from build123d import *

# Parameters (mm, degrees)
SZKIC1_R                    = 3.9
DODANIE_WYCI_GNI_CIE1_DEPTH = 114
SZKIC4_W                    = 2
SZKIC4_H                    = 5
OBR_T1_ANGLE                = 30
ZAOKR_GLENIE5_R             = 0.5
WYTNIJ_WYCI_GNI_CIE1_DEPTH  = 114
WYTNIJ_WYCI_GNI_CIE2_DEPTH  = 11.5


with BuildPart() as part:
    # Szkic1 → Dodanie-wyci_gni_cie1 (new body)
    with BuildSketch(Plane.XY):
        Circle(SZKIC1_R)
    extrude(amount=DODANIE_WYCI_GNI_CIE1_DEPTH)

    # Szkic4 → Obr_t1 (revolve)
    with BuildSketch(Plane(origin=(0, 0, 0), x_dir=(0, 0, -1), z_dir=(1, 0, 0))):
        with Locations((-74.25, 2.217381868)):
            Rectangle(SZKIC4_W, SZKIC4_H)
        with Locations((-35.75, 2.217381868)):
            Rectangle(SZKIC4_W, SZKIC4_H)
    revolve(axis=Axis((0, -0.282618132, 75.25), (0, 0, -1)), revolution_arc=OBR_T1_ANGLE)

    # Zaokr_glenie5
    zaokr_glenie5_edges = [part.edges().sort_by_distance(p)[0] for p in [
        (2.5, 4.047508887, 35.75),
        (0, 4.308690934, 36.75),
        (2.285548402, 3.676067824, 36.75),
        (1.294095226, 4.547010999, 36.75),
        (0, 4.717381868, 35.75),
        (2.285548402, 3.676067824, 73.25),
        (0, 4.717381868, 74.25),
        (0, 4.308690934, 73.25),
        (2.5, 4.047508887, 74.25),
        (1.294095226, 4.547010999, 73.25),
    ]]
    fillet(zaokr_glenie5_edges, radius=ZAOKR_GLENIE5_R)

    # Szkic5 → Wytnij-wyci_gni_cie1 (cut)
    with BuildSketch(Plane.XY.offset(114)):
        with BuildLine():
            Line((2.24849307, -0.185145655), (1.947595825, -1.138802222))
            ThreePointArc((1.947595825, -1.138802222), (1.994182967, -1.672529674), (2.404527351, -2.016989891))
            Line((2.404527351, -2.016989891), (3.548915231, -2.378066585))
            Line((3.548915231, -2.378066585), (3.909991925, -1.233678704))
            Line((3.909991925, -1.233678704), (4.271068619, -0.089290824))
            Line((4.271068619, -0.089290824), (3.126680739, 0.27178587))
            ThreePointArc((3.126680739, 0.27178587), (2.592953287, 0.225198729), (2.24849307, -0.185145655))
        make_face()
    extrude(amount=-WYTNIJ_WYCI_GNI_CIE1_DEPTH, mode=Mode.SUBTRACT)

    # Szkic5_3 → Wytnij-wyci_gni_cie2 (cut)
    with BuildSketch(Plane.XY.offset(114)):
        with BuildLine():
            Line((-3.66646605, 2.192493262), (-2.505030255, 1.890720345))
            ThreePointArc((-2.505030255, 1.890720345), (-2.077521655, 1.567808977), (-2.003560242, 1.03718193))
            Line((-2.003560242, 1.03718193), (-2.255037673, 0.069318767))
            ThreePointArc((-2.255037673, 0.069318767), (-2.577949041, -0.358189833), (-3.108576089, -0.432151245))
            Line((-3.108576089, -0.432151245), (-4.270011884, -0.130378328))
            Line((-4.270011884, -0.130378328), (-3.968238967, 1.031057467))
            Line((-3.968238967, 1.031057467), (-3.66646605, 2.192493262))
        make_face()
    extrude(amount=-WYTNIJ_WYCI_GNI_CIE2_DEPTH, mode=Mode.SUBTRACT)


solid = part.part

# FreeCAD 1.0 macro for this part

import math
import FreeCAD as App
import Part
import Sketcher

V = App.Vector


def edges_at(feature, points):
    """Names of the edges that pass closest to the given points."""
    edges = feature.Shape.Edges
    near = lambda p: min(range(len(edges)), key=lambda i: edges[i].distToShape(Part.Vertex(*p))[0])
    return sorted({f"Edge{near(p) + 1}" for p in points})


def add_polygon(sketch, points):
    """Adds a closed chain of lines whose ends are joined by coincident constraints."""
    first, n = sketch.GeometryCount, len(points)
    for a, b in zip(points, points[1:] + points[:1]):
        sketch.addGeometry(Part.LineSegment(App.Vector(*a, 0), App.Vector(*b, 0)), False)
    for i in range(n):
        sketch.addConstraint(Sketcher.Constraint("Coincident", first + i, 2, first + (i + 1) % n, 1))

doc = App.newDocument("Part")
body = doc.addObject("PartDesign::Body", "Body")

# Sketch on XY plane
sketch1 = doc.addObject("Sketcher::SketchObject", "Sketch")
body.addObject(sketch1)
sketch1.AttachmentSupport = (doc.XY_Plane, [""])
sketch1.MapMode = "FlatFace"
sketch1.addGeometry(Part.Circle(V(0, 0, 0), V(0, 0, 1), 3.9), False)
sketch1.addConstraint(Sketcher.Constraint("Coincident", 0, 3, -1, 1))
sketch1.addConstraint(Sketcher.Constraint("Diameter", 0, 7.8))
pad1 = doc.addObject("PartDesign::Pad", "Pad")
body.addObject(pad1)
pad1.Profile = sketch1
pad1.Length = 114

# Sketch on YZ plane
sketch2 = doc.addObject("Sketcher::SketchObject", "Sketch001")
body.addObject(sketch2)
sketch2.AttachmentSupport = (doc.YZ_Plane, [""])
sketch2.MapMode = "FlatFace"
add_polygon(sketch2, [(4.717382, 75.25), (-0.282618, 75.25), (-0.282618, 73.25), (4.717382, 73.25)])  # lines 0-3
add_polygon(sketch2, [(4.717382, 36.75), (-0.282618, 36.75), (-0.282618, 34.75), (4.717382, 34.75)])  # lines 4-7
sketch2.addGeometry(Part.LineSegment(V(-0.282618, 75.25, 0), V(-0.282618, 34.75, 0)), True)  # axis
sketch2.addConstraint(Sketcher.Constraint("Horizontal", 0))
sketch2.addConstraint(Sketcher.Constraint("Vertical", 1))
sketch2.addConstraint(Sketcher.Constraint("Horizontal", 2))
sketch2.addConstraint(Sketcher.Constraint("Vertical", 3))
sketch2.addConstraint(Sketcher.Constraint("Horizontal", 4))
sketch2.addConstraint(Sketcher.Constraint("Vertical", 5))
sketch2.addConstraint(Sketcher.Constraint("Horizontal", 6))
sketch2.addConstraint(Sketcher.Constraint("Vertical", 7))
sketch2.addConstraint(Sketcher.Constraint("Vertical", 8))
sketch2.addConstraint(Sketcher.Constraint("Coincident", 8, 1, 0, 2))
sketch2.addConstraint(Sketcher.Constraint("Coincident", 8, 2, 5, 2))
sketch2.addConstraint(Sketcher.Constraint("Vertical", 3, 2, 6, 2))
sketch2.addConstraint(Sketcher.Constraint("Equal", 3, 5))
sketch2.addConstraint(Sketcher.Constraint("DistanceX", 0, 2, 0, 1, 5.0))
sketch2.addConstraint(Sketcher.Constraint("DistanceY", 1, 2, 1, 1, 2.0))
sketch2.addConstraint(Sketcher.Constraint("DistanceY", 8, 2, 8, 1, 40.5))
sketch2.addConstraint(Sketcher.Constraint("DistanceY", -1, 1, 0, 2, 75.25))
sketch2.addConstraint(Sketcher.Constraint("DistanceX", 0, 2, -1, 1, 0.282618))
revolution = doc.addObject("PartDesign::Revolution", "Revolution")
body.addObject(revolution)
revolution.Profile = sketch2
revolution.ReferenceAxis = (sketch2, ["Axis0"])
revolution.Angle = 30
doc.recompute()

fillet = doc.addObject("PartDesign::Fillet", "Fillet")
body.addObject(fillet)
fillet.Base = (revolution, edges_at(revolution, [
    (2.5, 4.048, 35.75),
    (0, 4.309, 36.75),
    (2.286, 3.676, 36.75),
    (1.294, 4.547, 36.75),
    (0, 4.717, 35.75),
    (2.286, 3.676, 73.25),
    (0, 4.717, 74.25),
    (0, 4.309, 73.25),
    (2.5, 4.048, 74.25),
    (1.294, 4.547, 73.25),
]))
fillet.Radius = 0.5

# Sketch on XY plane
sketch3 = doc.addObject("Sketcher::SketchObject", "Sketch002")
body.addObject(sketch3)
sketch3.AttachmentSupport = (doc.XY_Plane, [""])
sketch3.MapMode = "FlatFace"
sketch3.AttachmentOffset = App.Placement(V(0, 0, 114), App.Rotation())
sketch3.addGeometry(Part.LineSegment(V(2.248493, -0.185146, 0), V(1.947596, -1.138802, 0)), False)
sketch3.addGeometry(Part.ArcOfCircle(Part.Circle(V(2.615155, -1.34943, 0), V(0, 0, 1), 0.7), math.radians(162.488498), math.radians(252.488498)), False)
sketch3.addGeometry(Part.LineSegment(V(2.404527, -2.01699, 0), V(3.548915, -2.378067, 0)), False)
sketch3.addGeometry(Part.LineSegment(V(3.548915, -2.378067, 0), V(3.909992, -1.233679, 0)), False)
sketch3.addGeometry(Part.LineSegment(V(3.909992, -1.233679, 0), V(4.271069, -0.089291, 0)), False)
sketch3.addGeometry(Part.LineSegment(V(4.271069, -0.089291, 0), V(3.126681, 0.271786, 0)), False)
sketch3.addGeometry(Part.ArcOfCircle(Part.Circle(V(2.916053, -0.395774, 0), V(0, 0, 1), 0.7), math.radians(72.488498), math.radians(162.488498)), False)
sketch3.addConstraint(Sketcher.Constraint("Tangent", 0, 2, 1, 1))
sketch3.addConstraint(Sketcher.Constraint("Tangent", 1, 2, 2, 1))
sketch3.addConstraint(Sketcher.Constraint("Coincident", 2, 2, 3, 1))
sketch3.addConstraint(Sketcher.Constraint("Coincident", 3, 2, 4, 1))
sketch3.addConstraint(Sketcher.Constraint("Coincident", 4, 2, 5, 1))
sketch3.addConstraint(Sketcher.Constraint("Tangent", 5, 2, 6, 1))
sketch3.addConstraint(Sketcher.Constraint("Tangent", 6, 2, 0, 1))
sketch3.addConstraint(Sketcher.Constraint("Equal", 1, 6))
sketch3.addConstraint(Sketcher.Constraint("Perpendicular", 0, 2))
sketch3.addConstraint(Sketcher.Constraint("Perpendicular", 2, 3))
sketch3.addConstraint(Sketcher.Constraint("Parallel", 3, 4))
sketch3.addConstraint(Sketcher.Constraint("Perpendicular", 4, 5))
sketch3.addConstraint(Sketcher.Constraint("Equal", 2, 3))
sketch3.addConstraint(Sketcher.Constraint("Equal", 3, 4))
sketch3.addConstraint(Sketcher.Constraint("Radius", 1, 0.7))
sketch3.addConstraint(Sketcher.Constraint("Distance", 0, 1.0))
sketch3.addConstraint(Sketcher.Constraint("DistanceY", 1, 3, -1, 1, 1.34943))
sketch3.addConstraint(Sketcher.Constraint("DistanceY", 1, 2, -1, 1, 2.01699))
sketch3.addConstraint(Sketcher.Constraint("DistanceX", -1, 1, 3, 2, 3.909992))
pocket1 = doc.addObject("PartDesign::Pocket", "Pocket")
body.addObject(pocket1)
pocket1.Profile = sketch3
pocket1.Length = 114

# Sketch on XY plane
sketch4 = doc.addObject("Sketcher::SketchObject", "Sketch003")
body.addObject(sketch4)
sketch4.AttachmentSupport = (doc.XY_Plane, [""])
sketch4.MapMode = "FlatFace"
sketch4.AttachmentOffset = App.Placement(V(0, 0, 114), App.Rotation())
sketch4.addGeometry(Part.LineSegment(V(-2.50503, 1.89072, 0), V(-3.666466, 2.192493, 0)), False)
sketch4.addGeometry(Part.LineSegment(V(-3.666466, 2.192493, 0), V(-4.270012, -0.130378, 0)), False)
sketch4.addGeometry(Part.LineSegment(V(-4.270012, -0.130378, 0), V(-3.108576, -0.432151, 0)), False)
sketch4.addGeometry(Part.ArcOfCircle(Part.Circle(V(-2.932542, 0.245353, 0), V(0, 0, 1), 0.7), math.radians(-104.564956), math.radians(-14.564956)), False)
sketch4.addGeometry(Part.LineSegment(V(-2.255038, 0.069319, 0), V(-2.00356, 1.037182, 0)), False)
sketch4.addGeometry(Part.ArcOfCircle(Part.Circle(V(-2.681064, 1.213216, 0), V(0, 0, 1), 0.7), math.radians(-14.564956), math.radians(75.435044)), False)
sketch4.addConstraint(Sketcher.Constraint("Coincident", 0, 2, 1, 1))
sketch4.addConstraint(Sketcher.Constraint("Coincident", 1, 2, 2, 1))
sketch4.addConstraint(Sketcher.Constraint("Tangent", 2, 2, 3, 1))
sketch4.addConstraint(Sketcher.Constraint("Tangent", 3, 2, 4, 1))
sketch4.addConstraint(Sketcher.Constraint("Tangent", 4, 2, 5, 1))
sketch4.addConstraint(Sketcher.Constraint("Tangent", 5, 2, 0, 1))
sketch4.addConstraint(Sketcher.Constraint("Equal", 3, 5))
sketch4.addConstraint(Sketcher.Constraint("Perpendicular", 0, 1))
sketch4.addConstraint(Sketcher.Constraint("Perpendicular", 1, 2))
sketch4.addConstraint(Sketcher.Constraint("Perpendicular", 2, 4))
sketch4.addConstraint(Sketcher.Constraint("Radius", 3, 0.7))
sketch4.addConstraint(Sketcher.Constraint("Distance", 4, 1.0))
sketch4.addConstraint(Sketcher.Constraint("Distance", 0, 1.2))
sketch4.addConstraint(Sketcher.Constraint("DistanceX", 0, 2, 5, 3, 0.985402))
sketch4.addConstraint(Sketcher.Constraint("DistanceX", 3, 3, -1, 1, 2.932542))
sketch4.addConstraint(Sketcher.Constraint("DistanceY", 1, 2, -1, 1, 0.130378))
pocket2 = doc.addObject("PartDesign::Pocket", "Pocket001")
body.addObject(pocket2)
pocket2.Profile = sketch4
pocket2.Length = 11.5

doc.recompute()
